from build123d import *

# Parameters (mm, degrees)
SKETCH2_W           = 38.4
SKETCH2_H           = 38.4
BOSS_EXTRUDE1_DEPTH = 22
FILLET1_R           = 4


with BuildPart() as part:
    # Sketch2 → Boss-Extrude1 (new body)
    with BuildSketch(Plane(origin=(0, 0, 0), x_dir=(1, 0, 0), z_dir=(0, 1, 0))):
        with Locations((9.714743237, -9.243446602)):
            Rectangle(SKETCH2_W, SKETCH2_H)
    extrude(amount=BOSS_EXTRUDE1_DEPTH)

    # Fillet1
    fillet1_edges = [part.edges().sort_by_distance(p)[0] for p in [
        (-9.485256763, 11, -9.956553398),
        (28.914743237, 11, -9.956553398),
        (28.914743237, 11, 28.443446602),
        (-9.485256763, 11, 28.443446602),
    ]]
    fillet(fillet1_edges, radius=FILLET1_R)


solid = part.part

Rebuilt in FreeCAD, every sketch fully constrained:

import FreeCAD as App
import Part
import Sketcher
from FreeCAD import Vector


def edges_at(feature, points):
    """Names of the edges that pass closest to the given points."""
    edges = feature.Shape.Edges
    near = lambda p: min(range(len(edges)), key=lambda i: edges[i].distToShape(Part.Vertex(*p))[0])
    return sorted({f"Edge{near(p) + 1}" for p in points})


def add_polygon(sketch, points):
    """Adds a closed chain of lines whose ends are joined by coincident constraints."""
    first, n = sketch.GeometryCount, len(points)
    for a, b in zip(points, points[1:] + points[:1]):
        sketch.addGeometry(Part.LineSegment(App.Vector(*a, 0), App.Vector(*b, 0)), False)
    for i in range(n):
        sketch.addConstraint(Sketcher.Constraint("Coincident", first + i, 2, first + (i + 1) % n, 1))

doc = App.newDocument("Part")
body = doc.addObject("PartDesign::Body", "Body")

sketch1 = body.newObject("Sketcher::SketchObject", "Sketch")
sketch1.AttachmentSupport = (doc.getObject("XZ_Plane"), [""])
sketch1.MapMode = "FlatFace"
add_polygon(sketch1, [(-9.485257, -9.956553), (-9.485257, 28.443447), (28.914743, 28.443447), (28.914743, -9.956553)])
sketch1.addConstraint(Sketcher.Constraint("Vertical", 0))
sketch1.addConstraint(Sketcher.Constraint("Horizontal", 1))
sketch1.addConstraint(Sketcher.Constraint("Vertical", 2))
sketch1.addConstraint(Sketcher.Constraint("Horizontal", 3))
sketch1.addConstraint(Sketcher.Constraint("Equal", 3, 0))
sketch1.addConstraint(Sketcher.Constraint("DistanceX", 1, 1, 1, 2, 38.4))
sketch1.addConstraint(Sketcher.Constraint("DistanceX", 0, 2, -1, 1, 9.485257))
sketch1.addConstraint(Sketcher.Constraint("DistanceY", -1, 1, 0, 2, 28.443447))
pad1 = body.newObject("PartDesign::Pad", "Pad")
pad1.Profile = sketch1
pad1.Length = 22
pad1.Reversed = True
doc.recompute()

fillet = body.newObject("PartDesign::Fillet", "Fillet")
fillet.Base = (pad1, edges_at(pad1, [
    (-9.485, 11, -9.957),
    (28.915, 11, -9.957),
    (28.915, 11, 28.443),
    (-9.485, 11, 28.443),
]))
fillet.Radius = 4

doc.recompute()
